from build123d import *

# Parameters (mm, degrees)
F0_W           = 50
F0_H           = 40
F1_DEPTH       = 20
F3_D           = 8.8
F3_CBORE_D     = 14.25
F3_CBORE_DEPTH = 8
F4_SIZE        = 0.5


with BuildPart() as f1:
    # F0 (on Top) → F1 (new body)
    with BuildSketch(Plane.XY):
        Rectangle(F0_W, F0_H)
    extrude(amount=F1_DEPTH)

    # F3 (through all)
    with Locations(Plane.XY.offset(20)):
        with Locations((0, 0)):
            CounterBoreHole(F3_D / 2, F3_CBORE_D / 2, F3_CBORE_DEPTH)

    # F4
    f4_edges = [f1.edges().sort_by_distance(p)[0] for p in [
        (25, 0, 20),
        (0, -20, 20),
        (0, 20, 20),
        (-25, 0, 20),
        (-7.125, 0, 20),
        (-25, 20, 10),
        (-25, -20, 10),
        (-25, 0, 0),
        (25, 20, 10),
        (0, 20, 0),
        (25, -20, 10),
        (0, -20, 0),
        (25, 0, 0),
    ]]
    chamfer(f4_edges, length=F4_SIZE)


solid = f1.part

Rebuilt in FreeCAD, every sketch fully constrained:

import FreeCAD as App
import Part
import Sketcher
from FreeCAD import Vector
Q = App.Units.Quantity


def edges_at(feature, points):
    """Names of the edges that pass closest to the given points."""
    edges = feature.Shape.Edges
    near = lambda p: min(range(len(edges)), key=lambda i: edges[i].distToShape(Part.Vertex(*p))[0])
    return sorted({f"Edge{near(p) + 1}" for p in points})


def add_polygon(sketch, points):
    """Adds a closed chain of lines whose ends are joined by coincident constraints."""
    first, n = sketch.GeometryCount, len(points)
    for a, b in zip(points, points[1:] + points[:1]):
        sketch.addGeometry(Part.LineSegment(App.Vector(*a, 0), App.Vector(*b, 0)), False)
    for i in range(n):
        sketch.addConstraint(Sketcher.Constraint("Coincident", first + i, 2, first + (i + 1) % n, 1))

doc = App.newDocument("Part")
body = doc.addObject("PartDesign::Body", "Body")

# Sketch on XY plane
sketch1 = body.newObject("Sketcher::SketchObject", "Sketch")
sketch1.AttachmentSupport = (doc.getObject("XY_Plane"), [""])
sketch1.MapMode = "FlatFace"
add_polygon(sketch1, [(-25, 20), (-25, -20), (25, -20), (25, 20)])  # lines 0-3
sketch1.addConstraint([
    Sketcher.Constraint("Vertical", 0),
    Sketcher.Constraint("Horizontal", 1),
    Sketcher.Constraint("Vertical", 2),
    Sketcher.Constraint("Horizontal", 3),
    Sketcher.Constraint("Symmetric", 0, 2, 2, 2, -1, 1),
    Sketcher.Constraint("DistanceX", 1, 1, 1, 2, Q("50 mm")),
    Sketcher.Constraint("DistanceY", 0, 2, 0, 1, Q("40 mm")),
])
pad1 = body.newObject("PartDesign::Pad", "Pad")
pad1.Profile = sketch1
pad1.Length = 20

# Sketch on XY plane
sketch2 = body.newObject("Sketcher::SketchObject", "Sketch001")
sketch2.AttachmentSupport = (doc.getObject("XY_Plane"), [""])
sketch2.MapMode = "FlatFace"
sketch2.AttachmentOffset = App.Placement(Vector(0, 0, 20), App.Rotation())
sketch2.addGeometry(Part.Circle(Vector(0, 0, 0), Vector(0, 0, 1), 4.4), False)
sketch2.addConstraint([
    Sketcher.Constraint("Coincident", 0, 3, -1, 1),
    Sketcher.Constraint("Diameter", 0, Q("8.8 mm")),
])
doc.recompute()
hole = body.newObject("PartDesign::Hole", "Hole")
hole.Profile = sketch2
hole.ThreadType = "None"
hole.Diameter = 8.8
hole.DepthType = "ThroughAll"
hole.HoleCutType = "Counterbore"
hole.HoleCutDiameter = 14.25
hole.HoleCutDepth = 8
doc.recompute()

chamfer = body.newObject("PartDesign::Chamfer", "Chamfer")
chamfer.Base = (hole, edges_at(hole, [
    (25, 0, 20),
    (0, -20, 20),
    (0, 20, 20),
    (-25, 0, 20),
    (-7.125, 0, 20),
    (-25, 20, 10),
    (-25, -20, 10),
    (-25, 0, 0),
    (25, 20, 10),
    (0, 20, 0),
    (25, -20, 10),
    (0, -20, 0),
    (25, 0, 0),
]))
chamfer.Size = 0.5

doc.recompute()
